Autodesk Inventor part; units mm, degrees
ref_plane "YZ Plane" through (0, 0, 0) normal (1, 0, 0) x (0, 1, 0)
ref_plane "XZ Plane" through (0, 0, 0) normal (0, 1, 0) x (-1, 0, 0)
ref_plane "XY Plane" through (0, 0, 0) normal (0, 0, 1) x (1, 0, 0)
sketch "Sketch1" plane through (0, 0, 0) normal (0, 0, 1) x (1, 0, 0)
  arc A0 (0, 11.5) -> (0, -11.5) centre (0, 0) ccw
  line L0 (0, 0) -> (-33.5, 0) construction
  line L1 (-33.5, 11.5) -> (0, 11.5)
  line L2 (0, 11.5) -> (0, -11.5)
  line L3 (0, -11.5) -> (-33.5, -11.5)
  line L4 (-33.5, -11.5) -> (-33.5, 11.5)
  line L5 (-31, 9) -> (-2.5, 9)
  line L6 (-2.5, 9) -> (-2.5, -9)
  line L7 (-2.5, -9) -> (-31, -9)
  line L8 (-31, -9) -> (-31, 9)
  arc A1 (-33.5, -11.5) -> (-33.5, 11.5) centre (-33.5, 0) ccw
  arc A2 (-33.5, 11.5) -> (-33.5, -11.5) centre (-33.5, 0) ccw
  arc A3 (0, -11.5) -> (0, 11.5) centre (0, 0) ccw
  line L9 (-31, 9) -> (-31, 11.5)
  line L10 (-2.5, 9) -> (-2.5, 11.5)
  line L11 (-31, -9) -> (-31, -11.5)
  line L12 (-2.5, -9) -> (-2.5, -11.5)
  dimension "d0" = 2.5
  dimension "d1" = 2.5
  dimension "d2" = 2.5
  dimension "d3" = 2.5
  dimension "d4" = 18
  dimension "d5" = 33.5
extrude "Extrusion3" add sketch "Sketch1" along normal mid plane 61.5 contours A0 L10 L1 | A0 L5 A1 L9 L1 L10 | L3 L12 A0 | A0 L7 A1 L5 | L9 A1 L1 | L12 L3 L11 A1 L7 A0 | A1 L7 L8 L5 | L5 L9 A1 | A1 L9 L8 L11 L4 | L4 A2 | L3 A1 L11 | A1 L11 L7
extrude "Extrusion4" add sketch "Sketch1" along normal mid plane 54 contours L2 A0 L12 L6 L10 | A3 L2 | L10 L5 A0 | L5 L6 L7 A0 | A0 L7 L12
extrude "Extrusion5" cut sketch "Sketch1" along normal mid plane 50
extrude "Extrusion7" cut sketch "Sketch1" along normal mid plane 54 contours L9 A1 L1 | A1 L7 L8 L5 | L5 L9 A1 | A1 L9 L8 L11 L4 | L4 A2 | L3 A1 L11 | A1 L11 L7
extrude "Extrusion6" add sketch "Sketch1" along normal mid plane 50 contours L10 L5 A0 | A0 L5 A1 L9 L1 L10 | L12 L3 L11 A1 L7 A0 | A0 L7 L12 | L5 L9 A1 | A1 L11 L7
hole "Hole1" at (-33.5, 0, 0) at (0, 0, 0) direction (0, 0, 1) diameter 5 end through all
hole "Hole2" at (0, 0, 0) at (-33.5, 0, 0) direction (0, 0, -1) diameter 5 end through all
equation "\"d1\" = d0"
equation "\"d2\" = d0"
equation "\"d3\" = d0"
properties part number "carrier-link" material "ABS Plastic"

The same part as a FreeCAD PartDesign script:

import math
import FreeCAD as App
import Part
import Sketcher
Q = App.Units.Quantity


def add_polygon(sketch, points):
    """Adds a closed chain of lines whose ends are joined by coincident constraints."""
    first, n = sketch.GeometryCount, len(points)
    for a, b in zip(points, points[1:] + points[:1]):
        sketch.addGeometry(Part.LineSegment(App.Vector(*a, 0), App.Vector(*b, 0)), False)
    for i in range(n):
        sketch.addConstraint(Sketcher.Constraint("Coincident", first + i, 2, first + (i + 1) % n, 1))

doc = App.newDocument("Part")
params = doc.addObject("Spreadsheet::Sheet", "Params")
for row, (alias, value) in enumerate([
    ("sketch1_width", "33.5 mm"),
    ("sketch1_radius", "11.5 mm"),
    ("pad1_length", "61.5 mm"),
    ("sketch2_diameter", "23 mm"),
    ("pad2_length", "54 mm"),
    ("sketch3_width", "33.5 mm"),
    ("sketch3_radius", "11.5 mm"),
    ("pocket1_length", "50 mm"),
    ("sketch4_width", "2.5 mm"),
    ("sketch4_radius", "11.5 mm"),
    ("pocket2_length", "54 mm"),
    ("sketch5_height", "2.5 mm"),
    ("sketch5_width", "28.5 mm"),
    ("pad3_length", "50 mm"),
    ("sketch6_diameter", "5 mm"),
    ("hole_diameter", "5 mm"),
    ("sketch7_diameter", "5 mm"),
    ("hole2_diameter", "5 mm"),
], start=1):
    params.set(f"A{row}", alias)
    params.set(f"B{row}", "=" + value)
    params.setAlias(f"B{row}", alias)

body = doc.addObject("PartDesign::Body", "Body")
body.AllowCompound = True

# Sketch on XY plane
sketch1 = body.newObject("Sketcher::SketchObject", "Sketch")
sketch1.AttachmentSupport = (doc.getObject("XY_Plane"), [""])
sketch1.MapMode = "FlatFace"
sketch1.addGeometry([
    Part.LineSegment(App.Vector(0, 12, 0), App.Vector(-34, 12, 0)),
    Part.ArcOfCircle(Part.Circle(App.Vector(-34, 0, 0), App.Vector(0, 0, 1), 12), math.radians(90), math.radians(270)),
    Part.LineSegment(App.Vector(-34, -12, 0), App.Vector(0, -12, 0)),
    Part.ArcOfCircle(Part.Circle(App.Vector(0, 0, 0), App.Vector(0, 0, 1), 12), math.radians(90), math.radians(270)),
], False)
sketch1.addConstraint([
    Sketcher.Constraint("Tangent", 0, 2, 1, 1),
    Sketcher.Constraint("Tangent", 1, 2, 2, 1),
    Sketcher.Constraint("Tangent", 2, 2, 3, 2),
    Sketcher.Constraint("Tangent", 3, 1, 0, 1),
    Sketcher.Constraint("Horizontal", 0),
    Sketcher.Constraint("Horizontal", 2),
    Sketcher.Constraint("Coincident", 3, 3, -1, 1),
    Sketcher.Constraint("DistanceX", 0, 2, 0, 1, Q("33.5 mm")),
    Sketcher.Constraint("Radius", 1, Q("11.5 mm")),
])
sketch1.setExpression("Constraints[7]", "Params.sketch1_width")
sketch1.setExpression("Constraints[8]", "Params.sketch1_radius")
pad1 = body.newObject("PartDesign::Pad", "Pad")
pad1.Profile = sketch1
pad1.setExpression("Length", "Params.pad1_length")
pad1.Midplane = True

# Sketch on XY plane
sketch2 = body.newObject("Sketcher::SketchObject", "Sketch001")
sketch2.AttachmentSupport = (doc.getObject("XY_Plane"), [""])
sketch2.MapMode = "FlatFace"
sketch2.addGeometry(Part.Circle(App.Vector(0, 0, 0), App.Vector(0, 0, 1), 12), False)
sketch2.addConstraint([
    Sketcher.Constraint("Coincident", 0, 3, -1, 1),
    Sketcher.Constraint("Diameter", 0, Q("23 mm")),
])
sketch2.setExpression("Constraints[1]", "Params.sketch2_diameter")
pad2 = body.newObject("PartDesign::Pad", "Pad001")
pad2.Profile = sketch2
pad2.setExpression("Length", "Params.pad2_length")
pad2.Midplane = True

# Sketch on XY plane
sketch3 = body.newObject("Sketcher::SketchObject", "Sketch002")
sketch3.AttachmentSupport = (doc.getObject("XY_Plane"), [""])
sketch3.MapMode = "FlatFace"
sketch3.addGeometry([
    Part.ArcOfCircle(Part.Circle(App.Vector(0, 0, 0), App.Vector(0, 0, 1), 12), math.radians(-90), math.radians(90)),
    Part.LineSegment(App.Vector(0, 12, 0), App.Vector(-34, 12, 0)),
    Part.ArcOfCircle(Part.Circle(App.Vector(-34, 0, 0), App.Vector(0, 0, 1), 12), math.radians(90), math.radians(270)),
    Part.LineSegment(App.Vector(-34, -12, 0), App.Vector(0, -12, 0)),
], False)
sketch3.addConstraint([
    Sketcher.Constraint("Tangent", 0, 2, 1, 1),
    Sketcher.Constraint("Tangent", 1, 2, 2, 1),
    Sketcher.Constraint("Tangent", 2, 2, 3, 1),
    Sketcher.Constraint("Tangent", 3, 2, 0, 1),
    Sketcher.Constraint("Horizontal", 1),
    Sketcher.Constraint("Horizontal", 3),
    Sketcher.Constraint("Coincident", 0, 3, -1, 1),
    Sketcher.Constraint("DistanceX", 1, 2, 1, 1, Q("33.5 mm")),
    Sketcher.Constraint("Radius", 0, Q("11.5 mm")),
])
sketch3.setExpression("Constraints[7]", "Params.sketch3_width")
sketch3.setExpression("Constraints[8]", "Params.sketch3_radius")
pocket1 = body.newObject("PartDesign::Pocket", "Pocket")
pocket1.Profile = sketch3
pocket1.setExpression("Length", "Params.pocket1_length")
pocket1.Midplane = True

# Sketch on XY plane
sketch4 = body.newObject("Sketcher::SketchObject", "Sketch003")
sketch4.AttachmentSupport = (doc.getObject("XY_Plane"), [""])
sketch4.MapMode = "FlatFace"
sketch4.addGeometry([
    Part.LineSegment(App.Vector(-31, 11.22, 0), App.Vector(-31, 11.5, 0)),  # 0
    Part.LineSegment(App.Vector(-31, 11.5, 0), App.Vector(-33.5, 11.5, 0)),  # 1
    Part.ArcOfCircle(Part.Circle(App.Vector(-33.5, 0, 0), App.Vector(0, 0, 1), 11.5), math.radians(90), math.radians(270)),  # 2
    Part.LineSegment(App.Vector(-33.5, -11.5, 0), App.Vector(-31, -11.5, 0)),  # 3
    Part.LineSegment(App.Vector(-31, -11.5, 0), App.Vector(-31, -11.22, 0)),  # 4
    Part.ArcOfCircle(Part.Circle(App.Vector(-33.5, 0, 0), App.Vector(0, 0, 1), 11.5), math.radians(-77), math.radians(77)),  # 5
], False)
sketch4.addConstraint([
    Sketcher.Constraint("Coincident", 0, 2, 1, 1),
    Sketcher.Constraint("Tangent", 1, 2, 2, 1),
    Sketcher.Constraint("Tangent", 2, 2, 3, 1),
    Sketcher.Constraint("Coincident", 3, 2, 4, 1),
    Sketcher.Constraint("Coincident", 4, 2, 5, 1),
    Sketcher.Constraint("Coincident", 5, 2, 0, 1),
    Sketcher.Constraint("Vertical", 0),
    Sketcher.Constraint("Horizontal", 1),
    Sketcher.Constraint("Horizontal", 3),
    Sketcher.Constraint("Vertical", 4),
    Sketcher.Constraint("Coincident", 5, 3, 2, 3),
    Sketcher.Constraint("Equal", 2, 5),
    Sketcher.Constraint("Symmetric", 0, 2, 3, 2, -1),
    Sketcher.Constraint("DistanceX", 1, 2, 1, 1, Q("2.5 mm")),
    Sketcher.Constraint("DistanceX", 2, 3, -1, 1, Q("33.5 mm")),
    Sketcher.Constraint("Radius", 2, Q("11.5 mm")),
])
sketch4.setExpression("Constraints[13]", "Params.sketch4_width")
sketch4.setExpression("Constraints[15]", "Params.sketch4_radius")
pocket2 = body.newObject("PartDesign::Pocket", "Pocket001")
pocket2.Profile = sketch4
pocket2.setExpression("Length", "Params.pocket2_length")
pocket2.Midplane = True

# Sketch on XY plane
sketch5 = body.newObject("Sketcher::SketchObject", "Sketch004")
sketch5.AttachmentSupport = (doc.getObject("XY_Plane"), [""])
sketch5.MapMode = "FlatFace"
add_polygon(sketch5, [(-2.5, 9), (-2.5, 11.5), (-31, 11.5), (-31, 9)])  # lines 0-3
add_polygon(sketch5, [(-2.5, -11.5), (-2.5, -9), (-31, -9), (-31, -11.5)])  # lines 4-7
sketch5.addConstraint([
    Sketcher.Constraint("Vertical", 0),
    Sketcher.Constraint("Horizontal", 1),
    Sketcher.Constraint("Vertical", 2),
    Sketcher.Constraint("Horizontal", 3),
    Sketcher.Constraint("Vertical", 4),
    Sketcher.Constraint("Horizontal", 5),
    Sketcher.Constraint("Vertical", 6),
    Sketcher.Constraint("Horizontal", 7),
    Sketcher.Constraint("Symmetric", 3, 2, 4, 2, -1),
    Sketcher.Constraint("Symmetric", 1, 2, 6, 2, -1),
    Sketcher.Constraint("DistanceY", 0, 1, 0, 2, Q("2.5 mm")),
    Sketcher.Constraint("DistanceY", 4, 2, 3, 2, Q("18 mm")),
    Sketcher.Constraint("DistanceX", 0, 2, -1, 1, Q("2.5 mm")),
    Sketcher.Constraint("DistanceX", 1, 2, 1, 1, Q("28.5 mm")),
])
sketch5.setExpression("Constraints[18]", "Params.sketch5_height")
sketch5.setExpression("Constraints[21]", "Params.sketch5_width")
pad3 = body.newObject("PartDesign::Pad", "Pad002")
pad3.Profile = sketch5
pad3.setExpression("Length", "Params.pad3_length")
pad3.Midplane = True

# Sketch on XY plane
sketch6 = body.newObject("Sketcher::SketchObject", "Sketch005")
sketch6.AttachmentSupport = (doc.getObject("XY_Plane"), [""])
sketch6.MapMode = "FlatFace"
sketch6.addGeometry([
    Part.Circle(App.Vector(-33.5, 0, 0), App.Vector(0, 0, 1), 2.5),
    Part.Circle(App.Vector(0, 0, 0), App.Vector(0, 0, 1), 2.5),
], False)
sketch6.addConstraint([
    Sketcher.Constraint("Coincident", 1, 3, -1, 1),
    Sketcher.Constraint("Equal", 0, 1),
    Sketcher.Constraint("PointOnObject", 0, 3, -1),
    Sketcher.Constraint("Diameter", 0, Q("5 mm")),
    Sketcher.Constraint("DistanceX", 0, 3, -1, 1, Q("33.5 mm")),
])
sketch6.setExpression("Constraints[3]", "Params.sketch6_diameter")
doc.recompute()
hole = body.newObject("PartDesign::Hole", "Hole")
hole.Profile = sketch6
hole.ThreadType = "None"
hole.setExpression("Diameter", "Params.hole_diameter")
hole.DepthType = "ThroughAll"
hole.Reversed = True

# Sketch on XY plane
sketch7 = body.newObject("Sketcher::SketchObject", "Sketch006")
sketch7.AttachmentSupport = (doc.getObject("XY_Plane"), [""])
sketch7.MapMode = "FlatFace"
sketch7.addGeometry([
    Part.Circle(App.Vector(0, 0, 0), App.Vector(0, 0, 1), 2.5),
    Part.Circle(App.Vector(-33.5, 0, 0), App.Vector(0, 0, 1), 2.5),
], False)
sketch7.addConstraint([
    Sketcher.Constraint("Coincident", 0, 3, -1, 1),
    Sketcher.Constraint("Equal", 0, 1),
    Sketcher.Constraint("PointOnObject", 1, 3, -1),
    Sketcher.Constraint("Diameter", 0, Q("5 mm")),
    Sketcher.Constraint("DistanceX", 1, 3, -1, 1, Q("33.5 mm")),
])
sketch7.setExpression("Constraints[3]", "Params.sketch7_diameter")
doc.recompute()
hole2 = body.newObject("PartDesign::Hole", "Hole001")
hole2.Profile = sketch7
hole2.ThreadType = "None"
hole2.setExpression("Diameter", "Params.hole2_diameter")
hole2.DepthType = "ThroughAll"

doc.recompute()
